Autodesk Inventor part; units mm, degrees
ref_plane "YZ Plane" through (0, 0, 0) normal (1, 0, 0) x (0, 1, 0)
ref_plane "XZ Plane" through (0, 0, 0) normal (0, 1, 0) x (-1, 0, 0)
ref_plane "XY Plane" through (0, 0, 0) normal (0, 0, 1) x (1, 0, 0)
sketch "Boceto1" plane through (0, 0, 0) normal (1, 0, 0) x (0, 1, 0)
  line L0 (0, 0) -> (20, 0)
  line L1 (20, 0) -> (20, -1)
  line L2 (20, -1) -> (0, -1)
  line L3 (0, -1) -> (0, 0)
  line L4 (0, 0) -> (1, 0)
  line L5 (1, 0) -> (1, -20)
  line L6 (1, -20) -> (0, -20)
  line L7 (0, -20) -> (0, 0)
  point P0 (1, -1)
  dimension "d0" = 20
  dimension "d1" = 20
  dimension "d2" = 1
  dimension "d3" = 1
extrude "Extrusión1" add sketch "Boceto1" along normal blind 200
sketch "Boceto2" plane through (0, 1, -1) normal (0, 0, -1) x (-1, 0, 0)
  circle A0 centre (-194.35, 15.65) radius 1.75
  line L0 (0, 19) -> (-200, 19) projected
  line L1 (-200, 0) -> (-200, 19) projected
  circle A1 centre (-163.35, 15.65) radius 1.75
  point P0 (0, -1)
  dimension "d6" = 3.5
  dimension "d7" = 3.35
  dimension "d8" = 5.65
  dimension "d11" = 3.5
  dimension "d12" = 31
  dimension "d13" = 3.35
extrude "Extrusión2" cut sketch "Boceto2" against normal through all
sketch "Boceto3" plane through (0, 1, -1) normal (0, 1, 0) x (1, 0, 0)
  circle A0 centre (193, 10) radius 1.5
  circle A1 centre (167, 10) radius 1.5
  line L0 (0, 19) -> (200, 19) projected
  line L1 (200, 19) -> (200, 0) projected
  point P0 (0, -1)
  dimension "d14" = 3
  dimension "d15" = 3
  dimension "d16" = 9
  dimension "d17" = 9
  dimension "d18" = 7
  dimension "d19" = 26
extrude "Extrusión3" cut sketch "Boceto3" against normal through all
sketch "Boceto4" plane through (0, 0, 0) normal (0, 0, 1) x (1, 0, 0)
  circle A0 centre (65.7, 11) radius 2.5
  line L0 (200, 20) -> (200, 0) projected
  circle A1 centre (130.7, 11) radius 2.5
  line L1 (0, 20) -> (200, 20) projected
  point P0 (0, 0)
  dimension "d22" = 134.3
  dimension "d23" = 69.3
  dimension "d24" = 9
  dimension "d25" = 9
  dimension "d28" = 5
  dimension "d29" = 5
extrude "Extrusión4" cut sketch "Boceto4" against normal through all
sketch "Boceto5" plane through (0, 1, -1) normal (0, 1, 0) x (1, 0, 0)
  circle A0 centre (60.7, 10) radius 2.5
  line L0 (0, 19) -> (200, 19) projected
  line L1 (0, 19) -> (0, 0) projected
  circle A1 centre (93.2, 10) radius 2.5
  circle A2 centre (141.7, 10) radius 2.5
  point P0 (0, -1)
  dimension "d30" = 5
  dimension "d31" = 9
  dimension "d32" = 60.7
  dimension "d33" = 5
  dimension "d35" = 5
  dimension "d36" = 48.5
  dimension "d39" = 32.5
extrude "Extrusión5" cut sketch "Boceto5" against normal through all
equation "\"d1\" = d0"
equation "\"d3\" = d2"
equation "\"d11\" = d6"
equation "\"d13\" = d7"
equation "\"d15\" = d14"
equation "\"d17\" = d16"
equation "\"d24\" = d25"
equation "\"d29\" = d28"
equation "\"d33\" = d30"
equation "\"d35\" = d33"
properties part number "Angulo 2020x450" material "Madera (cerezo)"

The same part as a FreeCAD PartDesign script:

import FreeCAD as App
import Part
import Sketcher
from FreeCAD import Vector
Q = App.Units.Quantity

doc = App.newDocument("Part")
body = doc.addObject("PartDesign::Body", "Body")

# Sketch on YZ plane
sketch1 = body.newObject("Sketcher::SketchObject", "Sketch")
sketch1.AttachmentSupport = (doc.getObject("YZ_Plane"), [""])
sketch1.MapMode = "FlatFace"
sketch1.addGeometry(Part.LineSegment(Vector(0, 0, 0), Vector(0, -20, 0)), False)
sketch1.addGeometry(Part.LineSegment(Vector(0, -20, 0), Vector(1, -20, 0)), False)
sketch1.addGeometry(Part.LineSegment(Vector(1, -20, 0), Vector(1, -1, 0)), False)
sketch1.addGeometry(Part.LineSegment(Vector(1, -1, 0), Vector(20, -1, 0)), False)
sketch1.addGeometry(Part.LineSegment(Vector(20, -1, 0), Vector(20, 0, 0)), False)
sketch1.addGeometry(Part.LineSegment(Vector(20, 0, 0), Vector(0, 0, 0)), False)
sketch1.addConstraint(Sketcher.Constraint("Coincident", 0, 2, 1, 1))
sketch1.addConstraint(Sketcher.Constraint("Coincident", 1, 2, 2, 1))
sketch1.addConstraint(Sketcher.Constraint("Coincident", 2, 2, 3, 1))
sketch1.addConstraint(Sketcher.Constraint("Coincident", 3, 2, 4, 1))
sketch1.addConstraint(Sketcher.Constraint("Coincident", 4, 2, 5, 1))
sketch1.addConstraint(Sketcher.Constraint("Coincident", 5, 2, 0, 1))
sketch1.addConstraint(Sketcher.Constraint("Vertical", 0))
sketch1.addConstraint(Sketcher.Constraint("Horizontal", 1))
sketch1.addConstraint(Sketcher.Constraint("Vertical", 2))
sketch1.addConstraint(Sketcher.Constraint("Horizontal", 3))
sketch1.addConstraint(Sketcher.Constraint("Vertical", 4))
sketch1.addConstraint(Sketcher.Constraint("Horizontal", 5))
sketch1.addConstraint(Sketcher.Constraint("Coincident", 5, 2, -1, 1))
sketch1.addConstraint(Sketcher.Constraint("Equal", 5, 0))
sketch1.addConstraint(Sketcher.Constraint("Equal", 3, 2))
sketch1.addConstraint(Sketcher.Constraint("DistanceX", 1, 1, 1, 2, Q("1 mm")))
sketch1.addConstraint(Sketcher.Constraint("DistanceX", 5, 2, 5, 1, Q("20 mm")))
pad1 = body.newObject("PartDesign::Pad", "Pad")
pad1.Profile = sketch1
pad1.Length = 200

# Sketch on XY plane
sketch2 = body.newObject("Sketcher::SketchObject", "Sketch001")
sketch2.AttachmentSupport = (doc.getObject("XY_Plane"), [""])
sketch2.MapMode = "FlatFace"
sketch2.AttachmentOffset = App.Placement(Vector(0, 0, -1), App.Rotation())
sketch2.addGeometry(Part.Circle(Vector(194.3, 16.6, 0), Vector(0, 0, 1), 1.8), False)
sketch2.addGeometry(Part.Circle(Vector(163.3, 16.6, 0), Vector(0, 0, 1), 1.8), False)
sketch2.addConstraint(Sketcher.Constraint("Equal", 0, 1))
sketch2.addConstraint(Sketcher.Constraint("Horizontal", 0, 3, 1, 3))
sketch2.addConstraint(Sketcher.Constraint("Diameter", 0, Q("3.5 mm")))
sketch2.addConstraint(Sketcher.Constraint("DistanceX", 1, 3, 0, 3, Q("31 mm")))
sketch2.addConstraint(Sketcher.Constraint("DistanceX", -1, 1, 0, 3, Q("194.35 mm")))
sketch2.addConstraint(Sketcher.Constraint("DistanceY", -1, 1, 0, 3, Q("16.65 mm")))
pocket1 = body.newObject("PartDesign::Pocket", "Pocket")
pocket1.Profile = sketch2
pocket1.Type = "ThroughAll"
pocket1.Reversed = True

# Sketch on XZ plane
sketch3 = body.newObject("Sketcher::SketchObject", "Sketch002")
sketch3.AttachmentSupport = (doc.getObject("XZ_Plane"), [""])
sketch3.MapMode = "FlatFace"
sketch3.AttachmentOffset = App.Placement(Vector(0, 0, -1), App.Rotation())
sketch3.addGeometry(Part.Circle(Vector(193, -11, 0), Vector(0, 0, 1), 1.5), False)
sketch3.addGeometry(Part.Circle(Vector(167, -11, 0), Vector(0, 0, 1), 1.5), False)
sketch3.addConstraint(Sketcher.Constraint("Equal", 0, 1))
sketch3.addConstraint(Sketcher.Constraint("Horizontal", 0, 3, 1, 3))
sketch3.addConstraint(Sketcher.Constraint("Diameter", 0, Q("3 mm")))
sketch3.addConstraint(Sketcher.Constraint("DistanceX", 1, 3, 0, 3, Q("26 mm")))
sketch3.addConstraint(Sketcher.Constraint("DistanceX", -1, 1, 0, 3, Q("193 mm")))
sketch3.addConstraint(Sketcher.Constraint("DistanceY", 0, 3, -1, 1, Q("11 mm")))
pocket2 = body.newObject("PartDesign::Pocket", "Pocket001")
pocket2.Profile = sketch3
pocket2.Type = "ThroughAll"
pocket2.Reversed = True

# Sketch on XY plane
sketch4 = body.newObject("Sketcher::SketchObject", "Sketch003")
sketch4.AttachmentSupport = (doc.getObject("XY_Plane"), [""])
sketch4.MapMode = "FlatFace"
sketch4.addGeometry(Part.Circle(Vector(65.7, 11, 0), Vector(0, 0, 1), 2.5), False)
sketch4.addGeometry(Part.Circle(Vector(130.7, 11, 0), Vector(0, 0, 1), 2.5), False)
sketch4.addConstraint(Sketcher.Constraint("Equal", 0, 1))
sketch4.addConstraint(Sketcher.Constraint("Horizontal", 0, 3, 1, 3))
sketch4.addConstraint(Sketcher.Constraint("Diameter", 0, Q("5 mm")))
sketch4.addConstraint(Sketcher.Constraint("DistanceY", -1, 1, 0, 3, Q("11 mm")))
sketch4.addConstraint(Sketcher.Constraint("DistanceX", 0, 3, 1, 3, Q("65 mm")))
sketch4.addConstraint(Sketcher.Constraint("DistanceX", -1, 1, 0, 3, Q("65.7 mm")))
pocket3 = body.newObject("PartDesign::Pocket", "Pocket002")
pocket3.Profile = sketch4
pocket3.Type = "ThroughAll"

# Sketch on XZ plane
sketch5 = body.newObject("Sketcher::SketchObject", "Sketch004")
sketch5.AttachmentSupport = (doc.getObject("XZ_Plane"), [""])
sketch5.MapMode = "FlatFace"
sketch5.AttachmentOffset = App.Placement(Vector(0, 0, -1), App.Rotation())
sketch5.addGeometry(Part.Circle(Vector(60.7, -11, 0), Vector(0, 0, 1), 2.5), False)
sketch5.addGeometry(Part.Circle(Vector(93.2, -11, 0), Vector(0, 0, 1), 2.5), False)
sketch5.addGeometry(Part.Circle(Vector(141.7, -11, 0), Vector(0, 0, 1), 2.5), False)
sketch5.addConstraint(Sketcher.Constraint("Equal", 0, 1))
sketch5.addConstraint(Sketcher.Constraint("Equal", 1, 2))
sketch5.addConstraint(Sketcher.Constraint("Horizontal", 0, 3, 1, 3))
sketch5.addConstraint(Sketcher.Constraint("Horizontal", 1, 3, 2, 3))
sketch5.addConstraint(Sketcher.Constraint("Diameter", 0, Q("5 mm")))
sketch5.addConstraint(Sketcher.Constraint("DistanceX", -1, 1, 0, 3, Q("60.7 mm")))
sketch5.addConstraint(Sketcher.Constraint("DistanceX", 0, 3, 1, 3, Q("32.5 mm")))
sketch5.addConstraint(Sketcher.Constraint("DistanceX", 1, 3, 2, 3, Q("48.5 mm")))
sketch5.addConstraint(Sketcher.Constraint("DistanceY", 0, 3, -1, 1, Q("11 mm")))
pocket4 = body.newObject("PartDesign::Pocket", "Pocket003")
pocket4.Profile = sketch5
pocket4.Type = "ThroughAll"
pocket4.Reversed = True

doc.recompute()
